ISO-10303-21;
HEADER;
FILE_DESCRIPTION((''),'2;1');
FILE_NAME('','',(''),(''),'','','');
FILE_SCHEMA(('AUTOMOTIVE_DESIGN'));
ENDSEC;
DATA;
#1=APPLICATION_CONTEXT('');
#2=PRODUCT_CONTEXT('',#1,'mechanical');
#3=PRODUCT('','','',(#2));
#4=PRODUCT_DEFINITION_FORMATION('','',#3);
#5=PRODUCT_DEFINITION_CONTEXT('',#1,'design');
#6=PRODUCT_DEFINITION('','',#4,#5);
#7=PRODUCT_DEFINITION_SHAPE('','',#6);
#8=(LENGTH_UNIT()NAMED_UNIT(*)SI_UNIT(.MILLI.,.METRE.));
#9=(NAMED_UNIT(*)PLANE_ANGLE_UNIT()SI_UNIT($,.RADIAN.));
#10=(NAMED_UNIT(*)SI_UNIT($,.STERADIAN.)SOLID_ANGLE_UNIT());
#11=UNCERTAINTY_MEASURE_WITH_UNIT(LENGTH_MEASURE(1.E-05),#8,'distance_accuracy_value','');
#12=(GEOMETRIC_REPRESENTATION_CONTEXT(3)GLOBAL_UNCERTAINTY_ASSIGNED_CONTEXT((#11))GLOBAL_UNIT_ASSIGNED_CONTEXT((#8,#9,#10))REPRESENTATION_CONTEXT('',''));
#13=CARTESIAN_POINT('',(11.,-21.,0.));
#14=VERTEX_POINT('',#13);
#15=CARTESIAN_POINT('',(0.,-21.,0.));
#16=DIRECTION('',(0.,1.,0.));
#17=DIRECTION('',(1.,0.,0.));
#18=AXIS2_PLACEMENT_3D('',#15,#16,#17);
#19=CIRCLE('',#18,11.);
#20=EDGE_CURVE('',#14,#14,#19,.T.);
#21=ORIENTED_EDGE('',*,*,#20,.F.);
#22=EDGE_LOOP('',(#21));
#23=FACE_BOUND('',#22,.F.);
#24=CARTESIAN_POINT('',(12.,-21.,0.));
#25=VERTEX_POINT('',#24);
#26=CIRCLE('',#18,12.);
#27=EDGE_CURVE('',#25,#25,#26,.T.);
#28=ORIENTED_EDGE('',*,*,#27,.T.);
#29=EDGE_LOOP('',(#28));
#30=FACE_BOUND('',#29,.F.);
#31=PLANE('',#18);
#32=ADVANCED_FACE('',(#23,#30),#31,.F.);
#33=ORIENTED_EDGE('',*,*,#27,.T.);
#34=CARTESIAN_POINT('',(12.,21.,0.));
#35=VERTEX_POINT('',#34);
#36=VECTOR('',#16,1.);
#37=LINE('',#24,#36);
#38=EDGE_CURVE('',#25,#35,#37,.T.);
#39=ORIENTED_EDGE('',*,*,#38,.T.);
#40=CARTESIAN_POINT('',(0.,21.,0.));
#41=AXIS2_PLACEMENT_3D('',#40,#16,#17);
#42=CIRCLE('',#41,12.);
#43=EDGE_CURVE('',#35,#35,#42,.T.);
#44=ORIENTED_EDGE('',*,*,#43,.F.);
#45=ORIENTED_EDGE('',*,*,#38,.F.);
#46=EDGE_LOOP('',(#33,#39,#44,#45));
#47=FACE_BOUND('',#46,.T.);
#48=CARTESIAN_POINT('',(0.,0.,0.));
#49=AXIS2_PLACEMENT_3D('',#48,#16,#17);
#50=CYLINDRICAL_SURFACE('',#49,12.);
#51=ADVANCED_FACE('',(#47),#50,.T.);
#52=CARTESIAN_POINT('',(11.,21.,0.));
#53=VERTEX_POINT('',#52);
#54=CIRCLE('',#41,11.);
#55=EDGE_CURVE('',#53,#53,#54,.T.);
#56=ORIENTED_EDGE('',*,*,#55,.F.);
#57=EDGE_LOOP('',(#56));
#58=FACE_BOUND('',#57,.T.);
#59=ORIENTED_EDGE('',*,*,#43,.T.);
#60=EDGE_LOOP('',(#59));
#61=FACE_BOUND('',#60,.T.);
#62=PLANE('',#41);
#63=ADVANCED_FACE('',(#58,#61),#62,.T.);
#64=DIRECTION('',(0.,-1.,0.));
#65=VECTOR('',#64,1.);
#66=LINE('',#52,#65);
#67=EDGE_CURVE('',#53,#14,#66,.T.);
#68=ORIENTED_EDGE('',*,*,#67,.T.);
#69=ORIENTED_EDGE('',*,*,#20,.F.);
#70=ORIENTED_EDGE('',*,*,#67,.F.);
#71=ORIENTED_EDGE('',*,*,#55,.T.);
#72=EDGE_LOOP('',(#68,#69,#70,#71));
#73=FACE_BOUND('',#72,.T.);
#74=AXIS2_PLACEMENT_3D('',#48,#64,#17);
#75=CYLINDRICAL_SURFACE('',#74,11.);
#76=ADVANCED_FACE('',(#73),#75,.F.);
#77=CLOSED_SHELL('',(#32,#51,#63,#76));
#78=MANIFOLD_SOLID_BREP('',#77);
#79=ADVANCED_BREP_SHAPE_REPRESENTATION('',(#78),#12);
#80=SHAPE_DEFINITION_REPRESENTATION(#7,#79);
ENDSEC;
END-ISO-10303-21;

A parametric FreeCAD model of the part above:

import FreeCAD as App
import Part
import Sketcher
from FreeCAD import Vector

doc = App.newDocument("Part")
body = doc.addObject("PartDesign::Body", "Body")

sketch1 = body.newObject("Sketcher::SketchObject", "Sketch")
sketch1.AttachmentSupport = (doc.getObject("XZ_Plane"), [""])
sketch1.MapMode = "FlatFace"
sketch1.addGeometry(Part.Circle(Vector(0, 0, 0), Vector(0, 0, 1), 12), False)
sketch1.addGeometry(Part.Circle(Vector(0, 0, 0), Vector(0, 0, 1), 11), False)
sketch1.addConstraint(Sketcher.Constraint("Coincident", 0, 3, -1, 1))
sketch1.addConstraint(Sketcher.Constraint("Coincident", 1, 3, -1, 1))
sketch1.addConstraint(Sketcher.Constraint("Diameter", 0, 24.0))
sketch1.addConstraint(Sketcher.Constraint("Diameter", 1, 22.0))
pad1 = body.newObject("PartDesign::Pad", "Pad")
pad1.Profile = sketch1
pad1.Length = 42
pad1.Midplane = True

doc.recompute()
